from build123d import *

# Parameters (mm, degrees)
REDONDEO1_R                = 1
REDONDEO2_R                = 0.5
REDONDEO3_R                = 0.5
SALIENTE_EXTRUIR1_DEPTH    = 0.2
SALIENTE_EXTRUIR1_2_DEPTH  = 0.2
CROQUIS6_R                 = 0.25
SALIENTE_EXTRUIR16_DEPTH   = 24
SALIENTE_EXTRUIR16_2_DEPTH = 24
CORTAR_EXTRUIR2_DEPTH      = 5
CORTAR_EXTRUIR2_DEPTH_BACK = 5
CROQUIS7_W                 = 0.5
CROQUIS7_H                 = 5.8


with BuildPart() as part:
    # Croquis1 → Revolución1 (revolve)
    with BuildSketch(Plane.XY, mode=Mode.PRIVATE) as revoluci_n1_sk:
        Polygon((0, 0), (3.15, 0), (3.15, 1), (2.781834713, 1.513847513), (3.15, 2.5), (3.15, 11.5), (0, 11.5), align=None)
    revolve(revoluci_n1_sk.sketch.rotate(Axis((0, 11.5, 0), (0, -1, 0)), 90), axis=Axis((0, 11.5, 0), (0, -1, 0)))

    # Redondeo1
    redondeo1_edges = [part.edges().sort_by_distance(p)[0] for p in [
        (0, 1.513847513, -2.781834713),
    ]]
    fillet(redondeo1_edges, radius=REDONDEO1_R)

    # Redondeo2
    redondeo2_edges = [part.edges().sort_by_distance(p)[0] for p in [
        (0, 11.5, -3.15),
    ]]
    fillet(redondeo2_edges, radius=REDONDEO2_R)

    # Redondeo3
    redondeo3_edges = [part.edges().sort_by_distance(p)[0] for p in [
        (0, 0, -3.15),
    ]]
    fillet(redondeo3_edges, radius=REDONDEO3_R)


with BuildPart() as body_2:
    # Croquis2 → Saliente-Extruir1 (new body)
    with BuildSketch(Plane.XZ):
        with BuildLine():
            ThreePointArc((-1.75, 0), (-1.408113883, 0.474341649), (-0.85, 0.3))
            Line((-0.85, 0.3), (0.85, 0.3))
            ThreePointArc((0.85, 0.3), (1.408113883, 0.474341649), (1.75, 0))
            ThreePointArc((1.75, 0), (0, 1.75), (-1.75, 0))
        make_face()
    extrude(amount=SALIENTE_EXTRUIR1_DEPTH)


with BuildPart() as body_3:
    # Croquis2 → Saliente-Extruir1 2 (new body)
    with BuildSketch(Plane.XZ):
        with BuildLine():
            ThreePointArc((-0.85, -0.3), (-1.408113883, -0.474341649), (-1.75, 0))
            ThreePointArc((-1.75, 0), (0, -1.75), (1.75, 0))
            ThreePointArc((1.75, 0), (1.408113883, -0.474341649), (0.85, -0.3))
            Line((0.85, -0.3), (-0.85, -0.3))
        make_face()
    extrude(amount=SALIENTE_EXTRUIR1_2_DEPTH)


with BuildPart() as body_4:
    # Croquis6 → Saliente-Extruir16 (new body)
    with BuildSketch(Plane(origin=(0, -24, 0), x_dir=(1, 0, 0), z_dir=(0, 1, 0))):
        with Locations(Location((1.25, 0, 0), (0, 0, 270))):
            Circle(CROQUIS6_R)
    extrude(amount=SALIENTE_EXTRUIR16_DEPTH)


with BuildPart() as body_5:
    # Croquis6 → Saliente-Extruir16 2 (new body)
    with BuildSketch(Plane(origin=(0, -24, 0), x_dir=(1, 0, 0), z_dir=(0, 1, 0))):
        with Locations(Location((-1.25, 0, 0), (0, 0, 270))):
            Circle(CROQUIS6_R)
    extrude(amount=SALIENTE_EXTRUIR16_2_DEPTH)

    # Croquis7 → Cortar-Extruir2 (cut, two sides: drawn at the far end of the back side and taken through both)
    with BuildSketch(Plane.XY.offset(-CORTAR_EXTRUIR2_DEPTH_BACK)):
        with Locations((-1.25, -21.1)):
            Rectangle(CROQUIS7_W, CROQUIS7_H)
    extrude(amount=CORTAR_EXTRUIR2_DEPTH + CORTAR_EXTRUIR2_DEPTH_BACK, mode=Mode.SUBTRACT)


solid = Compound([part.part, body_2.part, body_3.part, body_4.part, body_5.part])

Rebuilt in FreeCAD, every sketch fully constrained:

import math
import FreeCAD as App
import Part
import Sketcher

V = App.Vector
Q = App.Units.Quantity


def edges_at(feature, points):
    """Names of the edges that pass closest to the given points."""
    edges = feature.Shape.Edges
    near = lambda p: min(range(len(edges)), key=lambda i: edges[i].distToShape(Part.Vertex(*p))[0])
    return sorted({f"Edge{near(p) + 1}" for p in points})

doc = App.newDocument("Part")
params = doc.addObject("Spreadsheet::Sheet", "Params")
for row, (alias, value) in enumerate([
    ("sketch1_height", "1 mm"),
    ("sketch1_height2", "9 mm"),
    ("sketch1_height3", "11.5 mm"),
    ("sketch1_width", "3.15 mm"),
    ("revolution_angle", "360 deg"),
    ("fillet_radius", "1 mm"),
    ("fillet2_radius", "0.5 mm"),
    ("fillet3_radius", "0.5 mm"),
    ("sketch2_radius", "0.5 mm"),
    ("sketch2_radius2", "1.75 mm"),
    ("sketch2_width", "1.7 mm"),
    ("pad1_length", "0.2 mm"),
    ("sketch3_radius", "0.5 mm"),
    ("sketch3_radius2", "1.75 mm"),
    ("sketch3_width", "1.7 mm"),
    ("pad2_length", "0.2 mm"),
    ("sketch4_diameter", "0.5 mm"),
    ("pad3_length", "24 mm"),
    ("sketch5_diameter", "0.5 mm"),
    ("pad4_length", "24 mm"),
    ("sketch6_width", "0.5 mm"),
    ("sketch6_height", "5.8 mm"),
], start=1):
    params.set(f"A{row}", alias)
    params.set(f"B{row}", "=" + value)
    params.setAlias(f"B{row}", alias)

body = doc.addObject("PartDesign::Body", "Body")

# Sketch on XY plane
sketch1 = body.newObject("Sketcher::SketchObject", "Sketch")
sketch1.AttachmentSupport = (doc.getObject("XY_Plane"), [""])
sketch1.MapMode = "FlatFace"
sketch1.addGeometry([
    Part.LineSegment(V(0, 0, 0), V(3.1, 0, 0)),  # 0
    Part.LineSegment(V(3.1, 0, 0), V(3.1, 1, 0)),  # 1
    Part.LineSegment(V(3.1, 1, 0), V(2.8, 1.5, 0)),  # 2
    Part.LineSegment(V(2.8, 1.5, 0), V(3.1, 2.5, 0)),  # 3
    Part.LineSegment(V(3.1, 2.5, 0), V(3.1, 11.5, 0)),  # 4
    Part.LineSegment(V(3.1, 11.5, 0), V(0, 11.5, 0)),  # 5
    Part.LineSegment(V(0, 11.5, 0), V(0, 0, 0)),  # 6
], False)
sketch1.addConstraint([
    Sketcher.Constraint("Coincident", 0, 2, 1, 1),
    Sketcher.Constraint("Coincident", 1, 2, 2, 1),
    Sketcher.Constraint("Coincident", 2, 2, 3, 1),
    Sketcher.Constraint("Coincident", 3, 2, 4, 1),
    Sketcher.Constraint("Coincident", 4, 2, 5, 1),
    Sketcher.Constraint("Coincident", 5, 2, 6, 1),
    Sketcher.Constraint("Coincident", 6, 2, 0, 1),
    Sketcher.Constraint("Horizontal", 0),
    Sketcher.Constraint("Vertical", 1),
    Sketcher.Constraint("Vertical", 4),
    Sketcher.Constraint("Horizontal", 5),
    Sketcher.Constraint("Vertical", 6),
    Sketcher.Constraint("Coincident", 6, 2, -1, 1),
    Sketcher.Constraint("Vertical", 1, 2, 3, 2),
    Sketcher.Constraint("DistanceY", 1, 1, 1, 2, Q("1 mm")),
    Sketcher.Constraint("DistanceY", 4, 1, 4, 2, Q("9 mm")),
    Sketcher.Constraint("DistanceY", 6, 2, 6, 1, Q("11.5 mm")),
    Sketcher.Constraint("DistanceX", 0, 1, 0, 2, Q("3.15 mm")),
    Sketcher.Constraint("Distance", 2, Q("0.632127 mm")),
    Sketcher.Constraint("Distance", 3, Q("1.052636 mm")),
])
sketch1.setExpression("Constraints[14]", "Params.sketch1_height")
sketch1.setExpression("Constraints[15]", "Params.sketch1_height2")
sketch1.setExpression("Constraints[16]", "Params.sketch1_height3")
sketch1.setExpression("Constraints[17]", "Params.sketch1_width")
revolution = body.newObject("PartDesign::Revolution", "Revolution")
revolution.Profile = sketch1
revolution.ReferenceAxis = (sketch1, ["V_Axis"])
revolution.setExpression("Angle", "Params.revolution_angle")
doc.recompute()

fillet = body.newObject("PartDesign::Fillet", "Fillet")
fillet.Base = (revolution, edges_at(revolution, [(0, 1.514, -2.782)]))
fillet.setExpression("Radius", "Params.fillet_radius")
doc.recompute()

fillet2 = body.newObject("PartDesign::Fillet", "Fillet001")
fillet2.Base = (fillet, edges_at(fillet, [(0, 11.5, -3.15)]))
fillet2.setExpression("Radius", "Params.fillet2_radius")
doc.recompute()

fillet3 = body.newObject("PartDesign::Fillet", "Fillet002")
fillet3.Base = (fillet2, edges_at(fillet2, [(0, 0, -3.15)]))
fillet3.setExpression("Radius", "Params.fillet3_radius")
body2 = doc.addObject("PartDesign::Body", "Body001")

# Sketch on XZ plane
sketch2 = body2.newObject("Sketcher::SketchObject", "Sketch001")
sketch2.AttachmentSupport = (doc.getObject("XZ_Plane001"), [""])
sketch2.MapMode = "FlatFace"
sketch2.addGeometry([
    Part.ArcOfCircle(Part.Circle(V(-1.2, 0, 0), V(0, 0, 1), 0.5), math.radians(37), math.radians(180)),
    Part.LineSegment(V(-0.8, 0.3, 0), V(0.8, 0.3, 0)),
    Part.ArcOfCircle(Part.Circle(V(1.2, 0, 0), V(0, 0, 1), 0.5), math.radians(0), math.radians(143)),
    Part.ArcOfCircle(Part.Circle(V(0, 0, 0), V(0, 0, 1), 1.8), math.radians(0), math.radians(180)),
], False)
sketch2.addConstraint([
    Sketcher.Constraint("Coincident", 0, 1, 1, 1),
    Sketcher.Constraint("Coincident", 1, 2, 2, 2),
    Sketcher.Constraint("Tangent", 2, 1, 3, 1),
    Sketcher.Constraint("Tangent", 3, 2, 0, 2),
    Sketcher.Constraint("Horizontal", 1),
    Sketcher.Constraint("Coincident", 3, 3, -1, 1),
    Sketcher.Constraint("Equal", 0, 2),
    Sketcher.Constraint("PointOnObject", 0, 3, -1),
    Sketcher.Constraint("PointOnObject", 2, 3, -1),
    Sketcher.Constraint("Radius", 0, Q("0.5 mm")),
    Sketcher.Constraint("Radius", 3, Q("1.75 mm")),
    Sketcher.Constraint("DistanceX", 1, 1, 1, 2, Q("1.7 mm")),
])
sketch2.setExpression("Constraints[9]", "Params.sketch2_radius")
sketch2.setExpression("Constraints[10]", "Params.sketch2_radius2")
sketch2.setExpression("Constraints[11]", "Params.sketch2_width")
pad1 = body2.newObject("PartDesign::Pad", "Pad")
pad1.Profile = sketch2
pad1.setExpression("Length", "Params.pad1_length")
body3 = doc.addObject("PartDesign::Body", "Body002")

# Sketch on XZ plane
sketch3 = body3.newObject("Sketcher::SketchObject", "Sketch002")
sketch3.AttachmentSupport = (doc.getObject("XZ_Plane002"), [""])
sketch3.MapMode = "FlatFace"
sketch3.addGeometry([
    Part.ArcOfCircle(Part.Circle(V(-1.2, 0, 0), V(0, 0, 1), 0.5), math.radians(180), math.radians(323)),
    Part.ArcOfCircle(Part.Circle(V(0, 0, 0), V(0, 0, 1), 1.8), math.radians(180), math.radians(360)),
    Part.ArcOfCircle(Part.Circle(V(1.2, 0, 0), V(0, 0, 1), 0.5), math.radians(-143), math.radians(0)),
    Part.LineSegment(V(0.8, -0.3, 0), V(-0.8, -0.3, 0)),
], False)
sketch3.addConstraint([
    Sketcher.Constraint("Tangent", 0, 1, 1, 1),
    Sketcher.Constraint("Tangent", 1, 2, 2, 2),
    Sketcher.Constraint("Coincident", 2, 1, 3, 1),
    Sketcher.Constraint("Coincident", 3, 2, 0, 2),
    Sketcher.Constraint("Horizontal", 3),
    Sketcher.Constraint("Coincident", 1, 3, -1, 1),
    Sketcher.Constraint("Equal", 0, 2),
    Sketcher.Constraint("PointOnObject", 0, 3, -1),
    Sketcher.Constraint("PointOnObject", 2, 3, -1),
    Sketcher.Constraint("Radius", 0, Q("0.5 mm")),
    Sketcher.Constraint("Radius", 1, Q("1.75 mm")),
    Sketcher.Constraint("DistanceX", 3, 2, 3, 1, Q("1.7 mm")),
])
sketch3.setExpression("Constraints[9]", "Params.sketch3_radius")
sketch3.setExpression("Constraints[10]", "Params.sketch3_radius2")
sketch3.setExpression("Constraints[11]", "Params.sketch3_width")
pad2 = body3.newObject("PartDesign::Pad", "Pad001")
pad2.Profile = sketch3
pad2.setExpression("Length", "Params.pad2_length")
body4 = doc.addObject("PartDesign::Body", "Body003")

# Sketch on XZ plane
sketch4 = body4.newObject("Sketcher::SketchObject", "Sketch003")
sketch4.AttachmentSupport = (doc.getObject("XZ_Plane003"), [""])
sketch4.MapMode = "FlatFace"
sketch4.AttachmentOffset = App.Placement(V(0, 0, 24), App.Rotation())
sketch4.addGeometry(Part.Circle(V(1.25, 0, 0), V(0, 0, 1), 0.25), False)
sketch4.addConstraint([
    Sketcher.Constraint("PointOnObject", 0, 3, -1),
    Sketcher.Constraint("Diameter", 0, Q("0.5 mm")),
    Sketcher.Constraint("DistanceX", -1, 1, 0, 3, Q("1.25 mm")),
])
sketch4.setExpression("Constraints[1]", "Params.sketch4_diameter")
pad3 = body4.newObject("PartDesign::Pad", "Pad002")
pad3.Profile = sketch4
pad3.setExpression("Length", "Params.pad3_length")
pad3.Reversed = True
body5 = doc.addObject("PartDesign::Body", "Body004")

# Sketch on XZ plane
sketch5 = body5.newObject("Sketcher::SketchObject", "Sketch004")
sketch5.AttachmentSupport = (doc.getObject("XZ_Plane004"), [""])
sketch5.MapMode = "FlatFace"
sketch5.AttachmentOffset = App.Placement(V(0, 0, 24), App.Rotation())
sketch5.addGeometry(Part.Circle(V(-1.25, 0, 0), V(0, 0, 1), 0.25), False)
sketch5.addConstraint([
    Sketcher.Constraint("PointOnObject", 0, 3, -1),
    Sketcher.Constraint("Diameter", 0, Q("0.5 mm")),
    Sketcher.Constraint("DistanceX", 0, 3, -1, 1, Q("1.25 mm")),
])
sketch5.setExpression("Constraints[1]", "Params.sketch5_diameter")
pad4 = body5.newObject("PartDesign::Pad", "Pad003")
pad4.Profile = sketch5
pad4.setExpression("Length", "Params.pad4_length")
pad4.Reversed = True

# Sketch on XY plane
sketch6 = body5.newObject("Sketcher::SketchObject", "Sketch005")
sketch6.AttachmentSupport = (doc.getObject("XY_Plane004"), [""])
sketch6.MapMode = "FlatFace"
sketch6.addGeometry([
    Part.LineSegment(V(-1.5, -18.2, 0), V(-1.5, -24, 0)),
    Part.LineSegment(V(-1.5, -24, 0), V(-1, -24, 0)),
    Part.LineSegment(V(-1, -24, 0), V(-1, -18.2, 0)),
    Part.LineSegment(V(-1, -18.2, 0), V(-1.5, -18.2, 0)),
], False)
sketch6.addConstraint([
    Sketcher.Constraint("Coincident", 0, 2, 1, 1),
    Sketcher.Constraint("Coincident", 1, 2, 2, 1),
    Sketcher.Constraint("Coincident", 2, 2, 3, 1),
    Sketcher.Constraint("Coincident", 3, 2, 0, 1),
    Sketcher.Constraint("Vertical", 0),
    Sketcher.Constraint("Horizontal", 1),
    Sketcher.Constraint("Vertical", 2),
    Sketcher.Constraint("Horizontal", 3),
    Sketcher.Constraint("DistanceX", 1, 1, 1, 2, Q("0.5 mm")),
    Sketcher.Constraint("DistanceY", 0, 2, 0, 1, Q("5.8 mm")),
    Sketcher.Constraint("DistanceY", 0, 2, -1, 1, Q("24 mm")),
    Sketcher.Constraint("DistanceX", 1, 2, -1, 1, Q("1 mm")),
])
sketch6.setExpression("Constraints[8]", "Params.sketch6_width")
sketch6.setExpression("Constraints[9]", "Params.sketch6_height")
pocket1 = body5.newObject("PartDesign::Pocket", "Pocket")
pocket1.Profile = sketch6
pocket1.Type = "ThroughAll"
pocket1.Midplane = True

doc.recompute()
